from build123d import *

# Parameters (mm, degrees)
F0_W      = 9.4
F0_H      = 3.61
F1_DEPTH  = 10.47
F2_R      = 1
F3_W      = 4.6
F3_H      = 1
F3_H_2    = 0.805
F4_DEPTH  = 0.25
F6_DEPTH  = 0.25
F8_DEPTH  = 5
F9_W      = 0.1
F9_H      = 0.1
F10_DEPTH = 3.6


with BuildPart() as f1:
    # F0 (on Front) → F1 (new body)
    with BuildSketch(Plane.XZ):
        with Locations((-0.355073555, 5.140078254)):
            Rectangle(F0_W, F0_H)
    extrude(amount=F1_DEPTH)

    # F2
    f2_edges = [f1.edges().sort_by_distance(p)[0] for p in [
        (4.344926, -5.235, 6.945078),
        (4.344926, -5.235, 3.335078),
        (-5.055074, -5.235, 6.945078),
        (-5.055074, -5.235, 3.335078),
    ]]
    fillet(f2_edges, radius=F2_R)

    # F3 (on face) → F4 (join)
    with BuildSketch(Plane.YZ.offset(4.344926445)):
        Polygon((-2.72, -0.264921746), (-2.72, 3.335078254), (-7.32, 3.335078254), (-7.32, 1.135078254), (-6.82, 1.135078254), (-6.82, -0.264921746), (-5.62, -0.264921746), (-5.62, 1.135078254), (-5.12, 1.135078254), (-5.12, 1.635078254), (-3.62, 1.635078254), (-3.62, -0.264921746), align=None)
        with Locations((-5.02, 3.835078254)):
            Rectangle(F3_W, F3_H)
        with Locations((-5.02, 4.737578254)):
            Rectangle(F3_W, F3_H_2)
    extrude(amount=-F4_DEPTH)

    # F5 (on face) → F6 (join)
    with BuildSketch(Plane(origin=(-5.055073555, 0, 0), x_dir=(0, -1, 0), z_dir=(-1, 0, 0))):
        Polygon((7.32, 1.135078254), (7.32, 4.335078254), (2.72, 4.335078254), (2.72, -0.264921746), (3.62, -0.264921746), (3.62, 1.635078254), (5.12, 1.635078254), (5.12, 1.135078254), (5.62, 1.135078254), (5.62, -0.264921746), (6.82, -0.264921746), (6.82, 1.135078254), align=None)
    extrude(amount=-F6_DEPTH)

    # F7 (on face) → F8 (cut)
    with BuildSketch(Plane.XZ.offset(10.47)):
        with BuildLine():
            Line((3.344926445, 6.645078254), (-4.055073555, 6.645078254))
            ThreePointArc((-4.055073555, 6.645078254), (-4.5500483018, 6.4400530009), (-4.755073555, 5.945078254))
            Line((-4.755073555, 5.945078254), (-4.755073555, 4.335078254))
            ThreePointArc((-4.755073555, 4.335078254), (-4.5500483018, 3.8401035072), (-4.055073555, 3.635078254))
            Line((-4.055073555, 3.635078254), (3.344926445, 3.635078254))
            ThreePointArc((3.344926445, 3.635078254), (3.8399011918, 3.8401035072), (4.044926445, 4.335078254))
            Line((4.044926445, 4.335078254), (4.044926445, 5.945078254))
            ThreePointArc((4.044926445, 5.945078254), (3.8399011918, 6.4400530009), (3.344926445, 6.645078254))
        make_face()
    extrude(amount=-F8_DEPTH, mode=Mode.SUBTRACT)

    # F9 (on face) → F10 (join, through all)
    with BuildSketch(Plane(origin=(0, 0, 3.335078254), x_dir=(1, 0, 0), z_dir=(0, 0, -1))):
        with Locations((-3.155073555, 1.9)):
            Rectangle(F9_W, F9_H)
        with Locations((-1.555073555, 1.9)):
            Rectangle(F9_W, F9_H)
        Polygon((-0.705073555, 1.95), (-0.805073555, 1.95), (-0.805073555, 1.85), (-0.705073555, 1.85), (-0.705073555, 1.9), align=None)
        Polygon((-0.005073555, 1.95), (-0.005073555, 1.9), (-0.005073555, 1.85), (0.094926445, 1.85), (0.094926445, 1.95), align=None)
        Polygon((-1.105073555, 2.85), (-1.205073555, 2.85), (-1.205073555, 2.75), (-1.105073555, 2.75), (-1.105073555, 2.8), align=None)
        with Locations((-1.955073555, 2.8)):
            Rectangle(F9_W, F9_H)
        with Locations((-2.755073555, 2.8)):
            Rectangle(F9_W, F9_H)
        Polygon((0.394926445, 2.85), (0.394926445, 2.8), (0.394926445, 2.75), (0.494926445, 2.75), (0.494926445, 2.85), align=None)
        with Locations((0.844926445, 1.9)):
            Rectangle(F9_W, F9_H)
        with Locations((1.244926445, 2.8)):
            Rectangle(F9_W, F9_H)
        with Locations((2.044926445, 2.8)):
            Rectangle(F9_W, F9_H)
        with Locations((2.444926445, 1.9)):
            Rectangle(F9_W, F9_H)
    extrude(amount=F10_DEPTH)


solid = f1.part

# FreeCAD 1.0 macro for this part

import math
import FreeCAD as App
import Part
import Sketcher

V = App.Vector


def edges_at(feature, points):
    """Names of the edges that pass closest to the given points."""
    edges = feature.Shape.Edges
    near = lambda p: min(range(len(edges)), key=lambda i: edges[i].distToShape(Part.Vertex(*p))[0])
    return sorted({f"Edge{near(p) + 1}" for p in points})


def add_polygon(sketch, points):
    """Adds a closed chain of lines whose ends are joined by coincident constraints."""
    first, n = sketch.GeometryCount, len(points)
    for a, b in zip(points, points[1:] + points[:1]):
        sketch.addGeometry(Part.LineSegment(App.Vector(*a, 0), App.Vector(*b, 0)), False)
    for i in range(n):
        sketch.addConstraint(Sketcher.Constraint("Coincident", first + i, 2, first + (i + 1) % n, 1))

doc = App.newDocument("Part")
body = doc.addObject("PartDesign::Body", "Body")

# Sketch on XZ plane
sketch1 = body.newObject("Sketcher::SketchObject", "Sketch")
sketch1.AttachmentSupport = (doc.getObject("XZ_Plane"), [""])
sketch1.MapMode = "FlatFace"
add_polygon(sketch1, [(-5.1, 6.9), (-5.1, 3.3), (4.3, 3.3), (4.3, 6.9)])  # lines 0-3
sketch1.addConstraint(Sketcher.Constraint("Vertical", 0))
sketch1.addConstraint(Sketcher.Constraint("Horizontal", 1))
sketch1.addConstraint(Sketcher.Constraint("Vertical", 2))
sketch1.addConstraint(Sketcher.Constraint("Horizontal", 3))
sketch1.addConstraint(Sketcher.Constraint("DistanceX", 1, 1, 1, 2, 9.4))
sketch1.addConstraint(Sketcher.Constraint("DistanceY", 0, 2, 0, 1, 3.61))
sketch1.addConstraint(Sketcher.Constraint("DistanceY", -1, 1, 0, 2, 3.335078))
sketch1.addConstraint(Sketcher.Constraint("DistanceX", 0, 2, -1, 1, 5.055074))
pad1 = body.newObject("PartDesign::Pad", "Pad")
pad1.Profile = sketch1
pad1.Length = 10.47
doc.recompute()

fillet = body.newObject("PartDesign::Fillet", "Fillet")
fillet.Base = (pad1, edges_at(pad1, [
    (4.345, -5.235, 6.945),
    (4.345, -5.235, 3.335),
    (-5.055, -5.235, 6.945),
    (-5.055, -5.235, 3.335),
]))
fillet.Radius = 1

# Sketch on YZ plane
sketch2 = body.newObject("Sketcher::SketchObject", "Sketch001")
sketch2.AttachmentSupport = (doc.getObject("YZ_Plane"), [""])
sketch2.MapMode = "FlatFace"
sketch2.AttachmentOffset = App.Placement(V(0, 0, 4.344926), App.Rotation())
add_polygon(sketch2, [(-2.7, -0.3), (-2.7, 5.1), (-7.3, 5.1), (-7.3, 1.1), (-6.8, 1.1), (-6.8, -0.3), (-5.6, -0.3), (-5.6, 1.1), (-5.1, 1.1), (-5.1, 1.6), (-3.6, 1.6), (-3.6, -0.3)])  # lines 0-11
sketch2.addConstraint(Sketcher.Constraint("Vertical", 0))
sketch2.addConstraint(Sketcher.Constraint("Horizontal", 1))
sketch2.addConstraint(Sketcher.Constraint("Vertical", 2))
sketch2.addConstraint(Sketcher.Constraint("Horizontal", 3))
sketch2.addConstraint(Sketcher.Constraint("Vertical", 4))
sketch2.addConstraint(Sketcher.Constraint("Horizontal", 5))
sketch2.addConstraint(Sketcher.Constraint("Vertical", 6))
sketch2.addConstraint(Sketcher.Constraint("Horizontal", 7))
sketch2.addConstraint(Sketcher.Constraint("Vertical", 8))
sketch2.addConstraint(Sketcher.Constraint("Horizontal", 9))
sketch2.addConstraint(Sketcher.Constraint("Vertical", 10))
sketch2.addConstraint(Sketcher.Constraint("Horizontal", 11))
sketch2.addConstraint(Sketcher.Constraint("Horizontal", 3, 2, 6, 2))
sketch2.addConstraint(Sketcher.Constraint("Horizontal", 5, 2, 10, 2))
sketch2.addConstraint(Sketcher.Constraint("Equal", 3, 7))
sketch2.addConstraint(Sketcher.Constraint("Equal", 7, 8))
sketch2.addConstraint(Sketcher.Constraint("DistanceX", 1, 2, 1, 1, 4.6))
sketch2.addConstraint(Sketcher.Constraint("DistanceX", 3, 1, 3, 2, 0.5))
sketch2.addConstraint(Sketcher.Constraint("DistanceX", 5, 1, 5, 2, 1.2))
sketch2.addConstraint(Sketcher.Constraint("DistanceX", 9, 1, 9, 2, 1.5))
sketch2.addConstraint(Sketcher.Constraint("DistanceY", 4, 2, 4, 1, 1.4))
sketch2.addConstraint(Sketcher.Constraint("DistanceY", 0, 1, 0, 2, 5.405))
sketch2.addConstraint(Sketcher.Constraint("DistanceX", 0, 2, -1, 1, 2.72))
sketch2.addConstraint(Sketcher.Constraint("DistanceY", -1, 1, 0, 2, 5.140078))
pad2 = body.newObject("PartDesign::Pad", "Pad001")
pad2.Profile = sketch2
pad2.Length = 0.25
pad2.Reversed = True

# Sketch on YZ plane
sketch3 = body.newObject("Sketcher::SketchObject", "Sketch002")
sketch3.AttachmentSupport = (doc.getObject("YZ_Plane"), [""])
sketch3.MapMode = "FlatFace"
sketch3.AttachmentOffset = App.Placement(V(0, 0, -5.055074), App.Rotation())
add_polygon(sketch3, [(-7.3, 1.1), (-7.3, 4.3), (-2.7, 4.3), (-2.7, -0.3), (-3.6, -0.3), (-3.6, 1.6), (-5.1, 1.6), (-5.1, 1.1), (-5.6, 1.1), (-5.6, -0.3), (-6.8, -0.3), (-6.8, 1.1)])  # lines 0-11
sketch3.addConstraint(Sketcher.Constraint("Vertical", 0))
sketch3.addConstraint(Sketcher.Constraint("Horizontal", 1))
sketch3.addConstraint(Sketcher.Constraint("Vertical", 2))
sketch3.addConstraint(Sketcher.Constraint("Horizontal", 3))
sketch3.addConstraint(Sketcher.Constraint("Vertical", 4))
sketch3.addConstraint(Sketcher.Constraint("Horizontal", 5))
sketch3.addConstraint(Sketcher.Constraint("Vertical", 6))
sketch3.addConstraint(Sketcher.Constraint("Horizontal", 7))
sketch3.addConstraint(Sketcher.Constraint("Vertical", 8))
sketch3.addConstraint(Sketcher.Constraint("Horizontal", 9))
sketch3.addConstraint(Sketcher.Constraint("Vertical", 10))
sketch3.addConstraint(Sketcher.Constraint("Horizontal", 11))
sketch3.addConstraint(Sketcher.Constraint("Horizontal", 3, 2, 8, 2))
sketch3.addConstraint(Sketcher.Constraint("Horizontal", 7, 2, 10, 2))
sketch3.addConstraint(Sketcher.Constraint("Equal", 7, 11))
sketch3.addConstraint(Sketcher.Constraint("Equal", 1, 2))
sketch3.addConstraint(Sketcher.Constraint("Equal", 11, 6))
sketch3.addConstraint(Sketcher.Constraint("DistanceX", 1, 1, 1, 2, 4.6))
sketch3.addConstraint(Sketcher.Constraint("DistanceX", 3, 2, 3, 1, 0.9))
sketch3.addConstraint(Sketcher.Constraint("DistanceX", 5, 2, 5, 1, 1.5))
sketch3.addConstraint(Sketcher.Constraint("DistanceX", 7, 2, 7, 1, 0.5))
sketch3.addConstraint(Sketcher.Constraint("DistanceY", 0, 1, 0, 2, 3.2))
sketch3.addConstraint(Sketcher.Constraint("DistanceX", 0, 2, -1, 1, 7.32))
sketch3.addConstraint(Sketcher.Constraint("DistanceY", -1, 1, 0, 2, 4.335078))
pad3 = body.newObject("PartDesign::Pad", "Pad002")
pad3.Profile = sketch3
pad3.Length = 0.25

# Sketch on XZ plane
sketch4 = body.newObject("Sketcher::SketchObject", "Sketch003")
sketch4.AttachmentSupport = (doc.getObject("XZ_Plane"), [""])
sketch4.MapMode = "FlatFace"
sketch4.AttachmentOffset = App.Placement(V(0, 0, 10.47), App.Rotation())
sketch4.addGeometry(Part.LineSegment(V(3.3, 6.6, 0), V(-4.1, 6.6, 0)), False)
sketch4.addGeometry(Part.ArcOfCircle(Part.Circle(V(-4.1, 5.9, 0), V(0, 0, 1), 0.7), math.radians(90), math.radians(180)), False)
sketch4.addGeometry(Part.LineSegment(V(-4.8, 5.9, 0), V(-4.8, 4.3, 0)), False)
sketch4.addGeometry(Part.ArcOfCircle(Part.Circle(V(-4.1, 4.3, 0), V(0, 0, 1), 0.7), math.radians(180), math.radians(270)), False)
sketch4.addGeometry(Part.LineSegment(V(-4.1, 3.6, 0), V(3.3, 3.6, 0)), False)
sketch4.addGeometry(Part.ArcOfCircle(Part.Circle(V(3.3, 4.3, 0), V(0, 0, 1), 0.7), math.radians(-90), math.radians(0)), False)
sketch4.addGeometry(Part.LineSegment(V(4, 4.3, 0), V(4, 5.9, 0)), False)
sketch4.addGeometry(Part.ArcOfCircle(Part.Circle(V(3.3, 5.9, 0), V(0, 0, 1), 0.7), math.radians(0), math.radians(90)), False)
sketch4.addConstraint(Sketcher.Constraint("Tangent", 0, 2, 1, 1))
sketch4.addConstraint(Sketcher.Constraint("Tangent", 1, 2, 2, 1))
sketch4.addConstraint(Sketcher.Constraint("Tangent", 2, 2, 3, 1))
sketch4.addConstraint(Sketcher.Constraint("Tangent", 3, 2, 4, 1))
sketch4.addConstraint(Sketcher.Constraint("Tangent", 4, 2, 5, 1))
sketch4.addConstraint(Sketcher.Constraint("Tangent", 5, 2, 6, 1))
sketch4.addConstraint(Sketcher.Constraint("Tangent", 6, 2, 7, 1))
sketch4.addConstraint(Sketcher.Constraint("Tangent", 7, 2, 0, 1))
sketch4.addConstraint(Sketcher.Constraint("Horizontal", 0))
sketch4.addConstraint(Sketcher.Constraint("Vertical", 2))
sketch4.addConstraint(Sketcher.Constraint("Horizontal", 4))
sketch4.addConstraint(Sketcher.Constraint("Vertical", 6))
sketch4.addConstraint(Sketcher.Constraint("Equal", 1, 3))
sketch4.addConstraint(Sketcher.Constraint("Equal", 3, 5))
sketch4.addConstraint(Sketcher.Constraint("Equal", 5, 7))
sketch4.addConstraint(Sketcher.Constraint("Radius", 1, 0.7))
sketch4.addConstraint(Sketcher.Constraint("DistanceX", 0, 2, 0, 1, 7.4))
sketch4.addConstraint(Sketcher.Constraint("DistanceY", 2, 2, 2, 1, 1.61))
sketch4.addConstraint(Sketcher.Constraint("DistanceY", -1, 1, 1, 3, 5.945078))
sketch4.addConstraint(Sketcher.Constraint("DistanceX", 1, 3, -1, 1, 4.055074))
pocket1 = body.newObject("PartDesign::Pocket", "Pocket")
pocket1.Profile = sketch4
pocket1.Length = 5

# Sketch on XY plane
sketch5 = body.newObject("Sketcher::SketchObject", "Sketch004")
sketch5.AttachmentSupport = (doc.getObject("XY_Plane"), [""])
sketch5.MapMode = "FlatFace"
sketch5.AttachmentOffset = App.Placement(V(0, 0, 3.335078), App.Rotation())
add_polygon(sketch5, [(-3.21, -1.95), (-3.21, -1.85), (-3.11, -1.85), (-3.11, -1.95)])  # lines 0-3
add_polygon(sketch5, [(-1.61, -1.95), (-1.61, -1.85), (-1.51, -1.85), (-1.51, -1.95)])  # lines 4-7
add_polygon(sketch5, [(-0.71, -1.95), (-0.81, -1.95), (-0.81, -1.85), (-0.71, -1.85)])  # lines 8-11
add_polygon(sketch5, [(-0.01, -1.95), (-0.01, -1.85), (0.09, -1.85), (0.09, -1.95)])  # lines 12-15
add_polygon(sketch5, [(-1.11, -2.85), (-1.21, -2.85), (-1.21, -2.75), (-1.11, -2.75)])  # lines 16-19
add_polygon(sketch5, [(-2.01, -2.85), (-2.01, -2.75), (-1.91, -2.75), (-1.91, -2.85)])  # lines 20-23
add_polygon(sketch5, [(-2.81, -2.85), (-2.81, -2.75), (-2.71, -2.75), (-2.71, -2.85)])  # lines 24-27
add_polygon(sketch5, [(0.39, -2.85), (0.39, -2.75), (0.49, -2.75), (0.49, -2.85)])  # lines 28-31
add_polygon(sketch5, [(0.79, -1.95), (0.79, -1.85), (0.89, -1.85), (0.89, -1.95)])  # lines 32-35
add_polygon(sketch5, [(1.19, -2.85), (1.19, -2.75), (1.29, -2.75), (1.29, -2.85)])  # lines 36-39
add_polygon(sketch5, [(1.99, -2.85), (1.99, -2.75), (2.09, -2.75), (2.09, -2.85)])  # lines 40-43
add_polygon(sketch5, [(2.39, -1.95), (2.39, -1.85), (2.49, -1.85), (2.49, -1.95)])  # lines 44-47
sketch5.addConstraint(Sketcher.Constraint("Vertical", 0))
sketch5.addConstraint(Sketcher.Constraint("Horizontal", 1))
sketch5.addConstraint(Sketcher.Constraint("Vertical", 2))
sketch5.addConstraint(Sketcher.Constraint("Horizontal", 3))
sketch5.addConstraint(Sketcher.Constraint("Vertical", 4))
sketch5.addConstraint(Sketcher.Constraint("Horizontal", 5))
sketch5.addConstraint(Sketcher.Constraint("Vertical", 6))
sketch5.addConstraint(Sketcher.Constraint("Horizontal", 7))
sketch5.addConstraint(Sketcher.Constraint("Horizontal", 8))
sketch5.addConstraint(Sketcher.Constraint("Vertical", 9))
sketch5.addConstraint(Sketcher.Constraint("Horizontal", 10))
sketch5.addConstraint(Sketcher.Constraint("Vertical", 11))
sketch5.addConstraint(Sketcher.Constraint("Vertical", 12))
sketch5.addConstraint(Sketcher.Constraint("Horizontal", 13))
sketch5.addConstraint(Sketcher.Constraint("Vertical", 14))
sketch5.addConstraint(Sketcher.Constraint("Horizontal", 15))
sketch5.addConstraint(Sketcher.Constraint("Horizontal", 16))
sketch5.addConstraint(Sketcher.Constraint("Vertical", 17))
sketch5.addConstraint(Sketcher.Constraint("Horizontal", 18))
sketch5.addConstraint(Sketcher.Constraint("Vertical", 19))
sketch5.addConstraint(Sketcher.Constraint("Vertical", 20))
sketch5.addConstraint(Sketcher.Constraint("Horizontal", 21))
sketch5.addConstraint(Sketcher.Constraint("Vertical", 22))
sketch5.addConstraint(Sketcher.Constraint("Horizontal", 23))
sketch5.addConstraint(Sketcher.Constraint("Vertical", 24))
sketch5.addConstraint(Sketcher.Constraint("Horizontal", 25))
sketch5.addConstraint(Sketcher.Constraint("Vertical", 26))
sketch5.addConstraint(Sketcher.Constraint("Horizontal", 27))
sketch5.addConstraint(Sketcher.Constraint("Vertical", 28))
sketch5.addConstraint(Sketcher.Constraint("Horizontal", 29))
sketch5.addConstraint(Sketcher.Constraint("Vertical", 30))
sketch5.addConstraint(Sketcher.Constraint("Horizontal", 31))
sketch5.addConstraint(Sketcher.Constraint("Vertical", 32))
sketch5.addConstraint(Sketcher.Constraint("Horizontal", 33))
sketch5.addConstraint(Sketcher.Constraint("Vertical", 34))
sketch5.addConstraint(Sketcher.Constraint("Horizontal", 35))
sketch5.addConstraint(Sketcher.Constraint("Vertical", 36))
sketch5.addConstraint(Sketcher.Constraint("Horizontal", 37))
sketch5.addConstraint(Sketcher.Constraint("Vertical", 38))
sketch5.addConstraint(Sketcher.Constraint("Horizontal", 39))
sketch5.addConstraint(Sketcher.Constraint("Vertical", 40))
sketch5.addConstraint(Sketcher.Constraint("Horizontal", 41))
sketch5.addConstraint(Sketcher.Constraint("Vertical", 42))
sketch5.addConstraint(Sketcher.Constraint("Horizontal", 43))
sketch5.addConstraint(Sketcher.Constraint("Vertical", 44))
sketch5.addConstraint(Sketcher.Constraint("Horizontal", 45))
sketch5.addConstraint(Sketcher.Constraint("Vertical", 46))
sketch5.addConstraint(Sketcher.Constraint("Horizontal", 47))
sketch5.addConstraint(Sketcher.Constraint("Horizontal", 1, 2, 4, 2))
sketch5.addConstraint(Sketcher.Constraint("Horizontal", 3, 2, 6, 2))
sketch5.addConstraint(Sketcher.Constraint("Horizontal", 7, 2, 8, 2))
sketch5.addConstraint(Sketcher.Constraint("Horizontal", 5, 2, 9, 2))
sketch5.addConstraint(Sketcher.Constraint("Horizontal", 10, 2, 12, 2))
sketch5.addConstraint(Sketcher.Constraint("Horizontal", 11, 2, 14, 2))
sketch5.addConstraint(Sketcher.Constraint("Horizontal", 18, 2, 20, 2))
sketch5.addConstraint(Sketcher.Constraint("Horizontal", 19, 2, 22, 2))
sketch5.addConstraint(Sketcher.Constraint("Horizontal", 21, 2, 24, 2))
sketch5.addConstraint(Sketcher.Constraint("Horizontal", 23, 2, 26, 2))
sketch5.addConstraint(Sketcher.Constraint("Horizontal", 25, 2, 28, 2))
sketch5.addConstraint(Sketcher.Constraint("Horizontal", 27, 2, 30, 2))
sketch5.addConstraint(Sketcher.Constraint("Horizontal", 13, 2, 32, 2))
sketch5.addConstraint(Sketcher.Constraint("Horizontal", 15, 2, 34, 2))
sketch5.addConstraint(Sketcher.Constraint("Horizontal", 29, 2, 36, 2))
sketch5.addConstraint(Sketcher.Constraint("Horizontal", 31, 2, 38, 2))
sketch5.addConstraint(Sketcher.Constraint("Horizontal", 37, 2, 40, 2))
sketch5.addConstraint(Sketcher.Constraint("Horizontal", 39, 2, 42, 2))
sketch5.addConstraint(Sketcher.Constraint("Horizontal", 33, 2, 44, 2))
sketch5.addConstraint(Sketcher.Constraint("Horizontal", 35, 2, 46, 2))
sketch5.addConstraint(Sketcher.Constraint("Equal", 3, 5))
sketch5.addConstraint(Sketcher.Constraint("Equal", 7, 8))
sketch5.addConstraint(Sketcher.Constraint("Equal", 10, 13))
sketch5.addConstraint(Sketcher.Constraint("Equal", 15, 16))
sketch5.addConstraint(Sketcher.Constraint("Equal", 18, 21))
sketch5.addConstraint(Sketcher.Constraint("Equal", 23, 25))
sketch5.addConstraint(Sketcher.Constraint("Equal", 27, 29))
sketch5.addConstraint(Sketcher.Constraint("Equal", 31, 33))
sketch5.addConstraint(Sketcher.Constraint("Equal", 35, 37))
sketch5.addConstraint(Sketcher.Constraint("Equal", 39, 41))
sketch5.addConstraint(Sketcher.Constraint("Equal", 43, 45))
sketch5.addConstraint(Sketcher.Constraint("Equal", 47, 0))
sketch5.addConstraint(Sketcher.Constraint("Equal", 14, 17))
sketch5.addConstraint(Sketcher.Constraint("DistanceX", 1, 1, 1, 2, 0.1))
sketch5.addConstraint(Sketcher.Constraint("DistanceY", 16, 2, 5, 2, 1.0))
sketch5.addConstraint(Sketcher.Constraint("DistanceX", 1, 2, 4, 2, 1.5))
sketch5.addConstraint(Sketcher.Constraint("DistanceX", 6, 2, 8, 2, 0.7))
sketch5.addConstraint(Sketcher.Constraint("DistanceX", 10, 2, 12, 2, 0.7))
sketch5.addConstraint(Sketcher.Constraint("DistanceX", 6, 2, 16, 2, 0.3))
sketch5.addConstraint(Sketcher.Constraint("DistanceX", 20, 2, 17, 2, 0.8))
sketch5.addConstraint(Sketcher.Constraint("DistanceX", 24, 2, 20, 2, 0.8))
sketch5.addConstraint(Sketcher.Constraint("DistanceX", 14, 2, 28, 2, 0.3))
sketch5.addConstraint(Sketcher.Constraint("DistanceX", 13, 2, 32, 2, 0.7))
sketch5.addConstraint(Sketcher.Constraint("DistanceX", 29, 2, 36, 2, 0.7))
sketch5.addConstraint(Sketcher.Constraint("DistanceX", 37, 2, 40, 2, 0.7))
sketch5.addConstraint(Sketcher.Constraint("DistanceX", 41, 2, 44, 2, 0.3))
sketch5.addConstraint(Sketcher.Constraint("DistanceY", 0, 2, -1, 1, 1.85))
sketch5.addConstraint(Sketcher.Constraint("DistanceX", 0, 2, -1, 1, 3.205074))
pad4 = body.newObject("PartDesign::Pad", "Pad003")
pad4.Profile = sketch5
pad4.Length = 3.6
pad4.Reversed = True

doc.recompute()
